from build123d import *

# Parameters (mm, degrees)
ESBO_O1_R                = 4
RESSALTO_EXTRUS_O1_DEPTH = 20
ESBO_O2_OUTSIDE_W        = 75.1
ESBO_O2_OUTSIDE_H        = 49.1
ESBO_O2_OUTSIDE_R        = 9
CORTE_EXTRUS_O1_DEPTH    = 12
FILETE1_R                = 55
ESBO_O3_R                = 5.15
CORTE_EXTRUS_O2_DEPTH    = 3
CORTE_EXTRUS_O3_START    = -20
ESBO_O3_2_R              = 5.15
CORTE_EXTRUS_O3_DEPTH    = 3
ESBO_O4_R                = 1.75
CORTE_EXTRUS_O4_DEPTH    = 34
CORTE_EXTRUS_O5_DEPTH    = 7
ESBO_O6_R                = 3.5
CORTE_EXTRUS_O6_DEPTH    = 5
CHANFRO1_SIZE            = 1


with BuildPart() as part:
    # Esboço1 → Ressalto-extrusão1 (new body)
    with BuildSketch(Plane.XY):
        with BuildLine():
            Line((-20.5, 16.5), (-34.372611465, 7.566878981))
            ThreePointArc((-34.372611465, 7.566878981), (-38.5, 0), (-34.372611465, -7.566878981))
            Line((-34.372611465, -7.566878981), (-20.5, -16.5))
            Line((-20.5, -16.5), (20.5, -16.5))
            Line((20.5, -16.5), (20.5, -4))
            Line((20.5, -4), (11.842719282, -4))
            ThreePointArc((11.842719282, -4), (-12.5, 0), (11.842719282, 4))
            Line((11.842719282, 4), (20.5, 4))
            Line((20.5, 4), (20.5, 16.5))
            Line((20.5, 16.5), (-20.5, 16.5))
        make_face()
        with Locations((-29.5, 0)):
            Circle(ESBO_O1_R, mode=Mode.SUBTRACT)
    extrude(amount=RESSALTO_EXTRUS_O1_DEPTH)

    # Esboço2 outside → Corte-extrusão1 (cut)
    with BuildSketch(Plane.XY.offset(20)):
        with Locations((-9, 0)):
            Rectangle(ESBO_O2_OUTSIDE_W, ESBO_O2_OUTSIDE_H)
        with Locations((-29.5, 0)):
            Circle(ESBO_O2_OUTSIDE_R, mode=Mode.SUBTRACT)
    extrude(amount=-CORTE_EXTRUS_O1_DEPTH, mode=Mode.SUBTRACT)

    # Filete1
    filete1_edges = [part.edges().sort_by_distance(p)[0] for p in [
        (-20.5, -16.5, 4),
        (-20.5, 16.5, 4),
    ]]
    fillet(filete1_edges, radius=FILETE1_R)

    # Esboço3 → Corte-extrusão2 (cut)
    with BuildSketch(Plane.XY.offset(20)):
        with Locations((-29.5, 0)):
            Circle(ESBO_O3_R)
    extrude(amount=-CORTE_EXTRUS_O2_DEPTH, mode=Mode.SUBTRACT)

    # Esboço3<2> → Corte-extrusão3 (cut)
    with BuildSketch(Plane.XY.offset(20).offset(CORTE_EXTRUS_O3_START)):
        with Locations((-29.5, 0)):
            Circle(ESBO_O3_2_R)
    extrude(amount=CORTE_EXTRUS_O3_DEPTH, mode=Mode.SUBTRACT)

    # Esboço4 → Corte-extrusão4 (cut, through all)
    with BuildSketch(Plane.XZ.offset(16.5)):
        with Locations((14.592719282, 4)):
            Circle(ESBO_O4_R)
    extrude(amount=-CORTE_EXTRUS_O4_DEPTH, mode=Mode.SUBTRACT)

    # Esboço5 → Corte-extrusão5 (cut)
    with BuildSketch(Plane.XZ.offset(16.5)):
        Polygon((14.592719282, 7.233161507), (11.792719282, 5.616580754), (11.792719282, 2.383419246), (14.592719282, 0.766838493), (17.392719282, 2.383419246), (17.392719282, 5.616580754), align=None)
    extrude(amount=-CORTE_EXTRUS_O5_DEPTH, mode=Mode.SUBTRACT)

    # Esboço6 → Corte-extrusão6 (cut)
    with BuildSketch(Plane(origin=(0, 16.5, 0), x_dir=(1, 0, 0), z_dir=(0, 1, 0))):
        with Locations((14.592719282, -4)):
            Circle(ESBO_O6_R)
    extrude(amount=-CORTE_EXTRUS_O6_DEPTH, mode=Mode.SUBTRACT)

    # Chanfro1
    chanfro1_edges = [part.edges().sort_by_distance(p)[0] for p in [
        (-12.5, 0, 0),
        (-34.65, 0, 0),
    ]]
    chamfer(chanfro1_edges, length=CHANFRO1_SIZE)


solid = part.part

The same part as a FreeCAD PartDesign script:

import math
import FreeCAD as App
import Part
import Sketcher

V = App.Vector
Q = App.Units.Quantity


def edges_at(feature, points):
    """Names of the edges that pass closest to the given points."""
    edges = feature.Shape.Edges
    near = lambda p: min(range(len(edges)), key=lambda i: edges[i].distToShape(Part.Vertex(*p))[0])
    return sorted({f"Edge{near(p) + 1}" for p in points})

doc = App.newDocument("Part")
body = doc.addObject("PartDesign::Body", "Body")

sketch1 = body.newObject("Sketcher::SketchObject", "Sketch")
sketch1.AttachmentSupport = (doc.getObject("XY_Plane"), [""])
sketch1.MapMode = "FlatFace"
sketch1.addGeometry(Part.LineSegment(V(-20.5, 16.5, 0), V(-34.4, 7.6, 0)), False)
sketch1.addGeometry(Part.ArcOfCircle(Part.Circle(V(-29.5, 0, 0), V(0, 0, 1), 9), math.radians(123), math.radians(237)), False)
sketch1.addGeometry(Part.LineSegment(V(-34.4, -7.6, 0), V(-20.5, -16.5, 0)), False)
sketch1.addGeometry(Part.LineSegment(V(-20.5, -16.5, 0), V(20.5, -16.5, 0)), False)
sketch1.addGeometry(Part.LineSegment(V(20.5, -16.5, 0), V(20.5, -4, 0)), False)
sketch1.addGeometry(Part.LineSegment(V(20.5, -4, 0), V(11.8, -4, 0)), False)
sketch1.addGeometry(Part.ArcOfCircle(Part.Circle(V(0, 0, 0), V(0, 0, 1), 12.5), math.radians(19), math.radians(341)), False)
sketch1.addGeometry(Part.LineSegment(V(11.8, 4, 0), V(20.5, 4, 0)), False)
sketch1.addGeometry(Part.LineSegment(V(20.5, 4, 0), V(20.5, 16.5, 0)), False)
sketch1.addGeometry(Part.LineSegment(V(20.5, 16.5, 0), V(-20.5, 16.5, 0)), False)
sketch1.addGeometry(Part.Circle(V(-29.5, 0, 0), V(0, 0, 1), 4), False)
sketch1.addConstraint(Sketcher.Constraint("Tangent", 0, 2, 1, 1))
sketch1.addConstraint(Sketcher.Constraint("Tangent", 1, 2, 2, 1))
sketch1.addConstraint(Sketcher.Constraint("Coincident", 2, 2, 3, 1))
sketch1.addConstraint(Sketcher.Constraint("Coincident", 3, 2, 4, 1))
sketch1.addConstraint(Sketcher.Constraint("Coincident", 4, 2, 5, 1))
sketch1.addConstraint(Sketcher.Constraint("Coincident", 5, 2, 6, 2))
sketch1.addConstraint(Sketcher.Constraint("Coincident", 6, 1, 7, 1))
sketch1.addConstraint(Sketcher.Constraint("Coincident", 7, 2, 8, 1))
sketch1.addConstraint(Sketcher.Constraint("Coincident", 8, 2, 9, 1))
sketch1.addConstraint(Sketcher.Constraint("Coincident", 9, 2, 0, 1))
sketch1.addConstraint(Sketcher.Constraint("Horizontal", 3))
sketch1.addConstraint(Sketcher.Constraint("Vertical", 4))
sketch1.addConstraint(Sketcher.Constraint("Horizontal", 5))
sketch1.addConstraint(Sketcher.Constraint("Horizontal", 7))
sketch1.addConstraint(Sketcher.Constraint("Vertical", 8))
sketch1.addConstraint(Sketcher.Constraint("Horizontal", 9))
sketch1.addConstraint(Sketcher.Constraint("Coincident", 6, 3, -1, 1))
sketch1.addConstraint(Sketcher.Constraint("Coincident", 10, 3, 1, 3))
sketch1.addConstraint(Sketcher.Constraint("Symmetric", 2, 2, 8, 2, -1, 1))
sketch1.addConstraint(Sketcher.Constraint("Symmetric", 0, 2, 1, 2, -1))
sketch1.addConstraint(Sketcher.Constraint("Symmetric", 4, 2, 7, 2, -1))
sketch1.addConstraint(Sketcher.Constraint("Diameter", 10, 8.0))
sketch1.addConstraint(Sketcher.Constraint("Radius", 1, 9.0))
sketch1.addConstraint(Sketcher.Constraint("Radius", 6, 12.5))
sketch1.addConstraint(Sketcher.Constraint("DistanceX", 3, 1, 3, 2, 41.0))
sketch1.addConstraint(Sketcher.Constraint("DistanceY", 4, 1, 4, 2, 12.5))
sketch1.addConstraint(Sketcher.Constraint("DistanceY", 4, 2, -1, 1, 4.0))
sketch1.addConstraint(Sketcher.Constraint("DistanceX", 1, 3, 2, 2, 9.0))
pad1 = body.newObject("PartDesign::Pad", "Pad")
pad1.Profile = sketch1
pad1.Length = 20

sketch2 = body.newObject("Sketcher::SketchObject", "Sketch001")
sketch2.AttachmentSupport = (doc.getObject("XY_Plane"), [""])
sketch2.MapMode = "FlatFace"
sketch2.AttachmentOffset = App.Placement(V(0, 0, 20), App.Rotation())
sketch2.addGeometry(Part.LineSegment(V(-47, 25, 0), V(-47, -25, 0)), False)
sketch2.addGeometry(Part.LineSegment(V(-47, -25, 0), V(29, -25, 0)), False)
sketch2.addGeometry(Part.LineSegment(V(29, -25, 0), V(29, 25, 0)), False)
sketch2.addGeometry(Part.LineSegment(V(29, 25, 0), V(-47, 25, 0)), False)
sketch2.addGeometry(Part.Circle(V(-30, 0, 0), V(0, 0, 1), 9), False)
sketch2.addConstraint(Sketcher.Constraint("Coincident", 0, 2, 1, 1))
sketch2.addConstraint(Sketcher.Constraint("Coincident", 1, 2, 2, 1))
sketch2.addConstraint(Sketcher.Constraint("Coincident", 2, 2, 3, 1))
sketch2.addConstraint(Sketcher.Constraint("Coincident", 3, 2, 0, 1))
sketch2.addConstraint(Sketcher.Constraint("Vertical", 0))
sketch2.addConstraint(Sketcher.Constraint("Horizontal", 1))
sketch2.addConstraint(Sketcher.Constraint("Vertical", 2))
sketch2.addConstraint(Sketcher.Constraint("Horizontal", 3))
sketch2.addConstraint(Sketcher.Constraint("PointOnObject", 4, 3, -1))
sketch2.addConstraint(Sketcher.Constraint("Diameter", 4, 18.0))
sketch2.addConstraint(Sketcher.Constraint("DistanceX", 1, 1, 1, 2, 75.1))
sketch2.addConstraint(Sketcher.Constraint("DistanceY", 0, 2, 0, 1, 49.1))
sketch2.addConstraint(Sketcher.Constraint("DistanceX", 4, 3, -1, 1, 29.5))
sketch2.addConstraint(Sketcher.Constraint("DistanceX", 0, 2, -1, 1, 46.55))
sketch2.addConstraint(Sketcher.Constraint("DistanceY", 0, 2, -1, 1, 24.55))
pocket1 = body.newObject("PartDesign::Pocket", "Pocket")
pocket1.Profile = sketch2
pocket1.Length = 12
doc.recompute()

fillet = body.newObject("PartDesign::Fillet", "Fillet")
fillet.Base = (pocket1, edges_at(pocket1, [(-20.5, -16.5, 4), (-20.5, 16.5, 4)]))
fillet.Radius = 55

sketch3 = body.newObject("Sketcher::SketchObject", "Sketch002")
sketch3.AttachmentSupport = (doc.getObject("XY_Plane"), [""])
sketch3.MapMode = "FlatFace"
sketch3.AttachmentOffset = App.Placement(V(0, 0, 20), App.Rotation())
sketch3.addGeometry(Part.Circle(V(-30, 0, 0), V(0, 0, 1), 5), False)
sketch3.addConstraint(Sketcher.Constraint("PointOnObject", 0, 3, -1))
sketch3.addConstraint(Sketcher.Constraint("Diameter", 0, 10.3))
sketch3.addConstraint(Sketcher.Constraint("DistanceX", 0, 3, -1, 1, 29.5))
pocket2 = body.newObject("PartDesign::Pocket", "Pocket001")
pocket2.Profile = sketch3
pocket2.Length = 3

sketch4 = body.newObject("Sketcher::SketchObject", "Sketch003")
sketch4.AttachmentSupport = (doc.getObject("XY_Plane"), [""])
sketch4.MapMode = "FlatFace"
sketch4.addGeometry(Part.Circle(V(-30, 0, 0), V(0, 0, 1), 5), False)
sketch4.addConstraint(Sketcher.Constraint("PointOnObject", 0, 3, -1))
sketch4.addConstraint(Sketcher.Constraint("Diameter", 0, 10.3))
sketch4.addConstraint(Sketcher.Constraint("DistanceX", 0, 3, -1, 1, 29.5))
pocket3 = body.newObject("PartDesign::Pocket", "Pocket002")
pocket3.Profile = sketch4
pocket3.Length = 3
pocket3.Reversed = True

sketch5 = body.newObject("Sketcher::SketchObject", "Sketch004")
sketch5.AttachmentSupport = (doc.getObject("XZ_Plane"), [""])
sketch5.MapMode = "FlatFace"
sketch5.AttachmentOffset = App.Placement(V(0, 0, 16.5), App.Rotation())
sketch5.addGeometry(Part.Circle(V(14.6, 4, 0), V(0, 0, 1), 1.8), False)
sketch5.addConstraint(Sketcher.Constraint("Diameter", 0, 3.5))
sketch5.addConstraint(Sketcher.Constraint("DistanceY", -1, 1, 0, 3, 4.0))
sketch5.addConstraint(Sketcher.Constraint("DistanceX", -1, 1, 0, 3, 14.592719))
pocket4 = body.newObject("PartDesign::Pocket", "Pocket003")
pocket4.Profile = sketch5
pocket4.Type = "ThroughAll"

sketch6 = body.newObject("Sketcher::SketchObject", "Sketch005")
sketch6.AttachmentSupport = (doc.getObject("XZ_Plane"), [""])
sketch6.MapMode = "FlatFace"
sketch6.AttachmentOffset = App.Placement(V(0, 0, 16.5), App.Rotation())
sketch6.addGeometry(Part.LineSegment(V(14.6, 7.2, 0), V(11.8, 5.6, 0)), False)
sketch6.addGeometry(Part.LineSegment(V(11.8, 5.6, 0), V(11.8, 2.4, 0)), False)
sketch6.addGeometry(Part.LineSegment(V(11.8, 2.4, 0), V(14.6, 0.8, 0)), False)
sketch6.addGeometry(Part.LineSegment(V(14.6, 0.8, 0), V(17.4, 2.4, 0)), False)
sketch6.addGeometry(Part.LineSegment(V(17.4, 2.4, 0), V(17.4, 5.6, 0)), False)
sketch6.addGeometry(Part.LineSegment(V(17.4, 5.6, 0), V(14.6, 7.2, 0)), False)
sketch6.addConstraint(Sketcher.Constraint("Coincident", 0, 2, 1, 1))
sketch6.addConstraint(Sketcher.Constraint("Coincident", 1, 2, 2, 1))
sketch6.addConstraint(Sketcher.Constraint("Coincident", 2, 2, 3, 1))
sketch6.addConstraint(Sketcher.Constraint("Coincident", 3, 2, 4, 1))
sketch6.addConstraint(Sketcher.Constraint("Coincident", 4, 2, 5, 1))
sketch6.addConstraint(Sketcher.Constraint("Coincident", 5, 2, 0, 1))
sketch6.addConstraint(Sketcher.Constraint("Vertical", 1))
sketch6.addConstraint(Sketcher.Constraint("Vertical", 4))
sketch6.addConstraint(Sketcher.Constraint("Parallel", 0, 3))
sketch6.addConstraint(Sketcher.Constraint("Parallel", 2, 5))
sketch6.addConstraint(Sketcher.Constraint("Horizontal", 1, 2, 3, 2))
sketch6.addConstraint(Sketcher.Constraint("Horizontal", 0, 2, 4, 2))
sketch6.addConstraint(Sketcher.Constraint("Vertical", 2, 2, 5, 2))
sketch6.addConstraint(Sketcher.Constraint("Angle", 0, Q("-150 deg")))
sketch6.addConstraint(Sketcher.Constraint("DistanceX", 1, 2, 2, 2, 2.8))
sketch6.addConstraint(Sketcher.Constraint("DistanceY", 1, 2, 1, 1, 3.233162))
sketch6.addConstraint(Sketcher.Constraint("DistanceX", -1, 1, 0, 2, 11.792719))
sketch6.addConstraint(Sketcher.Constraint("DistanceY", -1, 1, 0, 2, 5.616581))
pocket5 = body.newObject("PartDesign::Pocket", "Pocket004")
pocket5.Profile = sketch6
pocket5.Length = 7

sketch7 = body.newObject("Sketcher::SketchObject", "Sketch006")
sketch7.AttachmentSupport = (doc.getObject("XZ_Plane"), [""])
sketch7.MapMode = "FlatFace"
sketch7.AttachmentOffset = App.Placement(V(0, 0, -16.5), App.Rotation())
sketch7.addGeometry(Part.Circle(V(14.6, 4, 0), V(0, 0, 1), 3.5), False)
sketch7.addConstraint(Sketcher.Constraint("Diameter", 0, 7.0))
sketch7.addConstraint(Sketcher.Constraint("DistanceY", -1, 1, 0, 3, 4.0))
sketch7.addConstraint(Sketcher.Constraint("DistanceX", -1, 1, 0, 3, 14.592719))
pocket6 = body.newObject("PartDesign::Pocket", "Pocket005")
pocket6.Profile = sketch7
pocket6.Length = 5
pocket6.Reversed = True
doc.recompute()

chamfer = body.newObject("PartDesign::Chamfer", "Chamfer")
chamfer.Base = (pocket6, edges_at(pocket6, [(-12.5, 0, 0), (-34.65, 0, 0)]))
chamfer.Size = 1

doc.recompute()
